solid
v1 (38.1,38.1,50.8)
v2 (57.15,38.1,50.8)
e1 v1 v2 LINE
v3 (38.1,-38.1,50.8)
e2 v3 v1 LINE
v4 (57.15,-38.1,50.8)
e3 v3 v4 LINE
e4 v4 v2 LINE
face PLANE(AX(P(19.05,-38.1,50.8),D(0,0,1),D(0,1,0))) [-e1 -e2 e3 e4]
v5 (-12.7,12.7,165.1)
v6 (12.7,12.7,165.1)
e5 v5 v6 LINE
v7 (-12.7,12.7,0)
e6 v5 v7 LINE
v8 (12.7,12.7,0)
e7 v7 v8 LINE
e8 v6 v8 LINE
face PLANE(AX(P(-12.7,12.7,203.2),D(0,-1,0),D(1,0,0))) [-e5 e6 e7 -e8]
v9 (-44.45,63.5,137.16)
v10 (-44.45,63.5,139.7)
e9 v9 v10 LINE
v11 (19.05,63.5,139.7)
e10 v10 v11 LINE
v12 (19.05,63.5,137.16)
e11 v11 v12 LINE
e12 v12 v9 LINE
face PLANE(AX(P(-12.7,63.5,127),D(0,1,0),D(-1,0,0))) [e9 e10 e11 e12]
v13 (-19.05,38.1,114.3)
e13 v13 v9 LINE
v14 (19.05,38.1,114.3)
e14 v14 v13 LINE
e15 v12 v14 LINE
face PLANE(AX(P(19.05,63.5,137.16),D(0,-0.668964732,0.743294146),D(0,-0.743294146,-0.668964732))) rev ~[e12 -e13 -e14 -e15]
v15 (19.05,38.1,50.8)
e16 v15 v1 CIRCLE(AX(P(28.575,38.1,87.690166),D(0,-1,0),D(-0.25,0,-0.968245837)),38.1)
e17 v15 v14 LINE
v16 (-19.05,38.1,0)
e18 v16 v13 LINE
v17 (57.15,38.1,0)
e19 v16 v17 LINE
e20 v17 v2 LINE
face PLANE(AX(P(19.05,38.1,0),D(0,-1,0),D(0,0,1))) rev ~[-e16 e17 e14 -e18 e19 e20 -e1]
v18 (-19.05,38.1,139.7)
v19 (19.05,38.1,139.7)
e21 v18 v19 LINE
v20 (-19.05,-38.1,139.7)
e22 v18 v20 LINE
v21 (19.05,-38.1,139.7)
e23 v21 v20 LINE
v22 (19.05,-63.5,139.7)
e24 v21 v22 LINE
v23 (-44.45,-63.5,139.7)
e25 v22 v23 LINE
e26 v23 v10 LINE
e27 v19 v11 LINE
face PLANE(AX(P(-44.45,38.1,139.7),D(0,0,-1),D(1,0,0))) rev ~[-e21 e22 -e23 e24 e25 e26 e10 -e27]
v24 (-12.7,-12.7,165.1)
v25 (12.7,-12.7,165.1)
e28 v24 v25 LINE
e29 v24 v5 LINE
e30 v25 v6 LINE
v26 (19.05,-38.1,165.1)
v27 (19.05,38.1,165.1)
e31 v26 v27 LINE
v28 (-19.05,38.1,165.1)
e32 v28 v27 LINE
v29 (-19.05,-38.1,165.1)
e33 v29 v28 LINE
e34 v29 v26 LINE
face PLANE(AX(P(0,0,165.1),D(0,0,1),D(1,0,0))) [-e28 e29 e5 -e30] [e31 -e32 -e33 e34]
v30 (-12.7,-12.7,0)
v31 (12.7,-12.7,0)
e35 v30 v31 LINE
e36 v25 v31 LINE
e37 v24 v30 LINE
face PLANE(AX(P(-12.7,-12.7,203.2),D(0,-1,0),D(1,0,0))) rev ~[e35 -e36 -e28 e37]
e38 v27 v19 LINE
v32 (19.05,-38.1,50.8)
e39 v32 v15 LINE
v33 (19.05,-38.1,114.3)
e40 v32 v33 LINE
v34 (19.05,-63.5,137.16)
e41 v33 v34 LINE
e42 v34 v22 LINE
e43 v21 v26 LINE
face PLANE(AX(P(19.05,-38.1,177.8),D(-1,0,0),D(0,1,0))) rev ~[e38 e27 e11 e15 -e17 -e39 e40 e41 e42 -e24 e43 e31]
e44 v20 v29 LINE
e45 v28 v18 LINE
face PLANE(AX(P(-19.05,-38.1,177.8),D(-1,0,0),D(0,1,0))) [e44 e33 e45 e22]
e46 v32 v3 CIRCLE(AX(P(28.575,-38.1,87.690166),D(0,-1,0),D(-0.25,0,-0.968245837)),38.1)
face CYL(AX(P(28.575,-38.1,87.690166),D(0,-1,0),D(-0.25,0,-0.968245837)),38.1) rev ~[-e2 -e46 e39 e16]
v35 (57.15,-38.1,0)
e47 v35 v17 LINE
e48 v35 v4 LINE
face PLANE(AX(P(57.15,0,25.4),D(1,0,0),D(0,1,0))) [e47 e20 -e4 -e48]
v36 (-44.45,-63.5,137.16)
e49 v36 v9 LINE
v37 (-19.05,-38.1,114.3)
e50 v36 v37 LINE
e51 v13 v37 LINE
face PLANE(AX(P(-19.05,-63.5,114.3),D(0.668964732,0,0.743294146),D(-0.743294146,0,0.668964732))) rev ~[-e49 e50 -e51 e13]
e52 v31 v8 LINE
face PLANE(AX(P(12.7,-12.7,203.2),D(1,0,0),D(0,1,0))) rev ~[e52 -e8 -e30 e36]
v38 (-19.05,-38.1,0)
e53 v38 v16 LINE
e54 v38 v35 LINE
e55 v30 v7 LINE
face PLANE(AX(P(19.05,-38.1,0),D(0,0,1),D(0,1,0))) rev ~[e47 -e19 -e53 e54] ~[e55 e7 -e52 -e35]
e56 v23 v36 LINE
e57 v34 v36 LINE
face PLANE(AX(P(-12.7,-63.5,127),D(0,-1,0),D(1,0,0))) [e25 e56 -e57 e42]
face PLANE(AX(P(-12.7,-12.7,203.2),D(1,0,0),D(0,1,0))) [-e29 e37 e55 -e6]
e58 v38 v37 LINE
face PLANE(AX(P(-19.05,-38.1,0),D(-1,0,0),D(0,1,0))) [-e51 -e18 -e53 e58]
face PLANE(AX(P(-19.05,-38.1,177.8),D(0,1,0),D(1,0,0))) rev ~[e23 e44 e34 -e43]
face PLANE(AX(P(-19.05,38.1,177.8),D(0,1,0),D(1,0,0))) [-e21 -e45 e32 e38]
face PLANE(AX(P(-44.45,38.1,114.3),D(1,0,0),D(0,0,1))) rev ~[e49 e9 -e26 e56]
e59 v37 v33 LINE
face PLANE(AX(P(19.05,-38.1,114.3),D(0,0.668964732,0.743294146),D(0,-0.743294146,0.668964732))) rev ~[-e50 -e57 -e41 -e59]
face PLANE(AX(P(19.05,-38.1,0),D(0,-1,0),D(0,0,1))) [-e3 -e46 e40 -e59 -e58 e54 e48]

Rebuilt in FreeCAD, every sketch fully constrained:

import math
import FreeCAD as App
import Part
import Sketcher
Q = App.Units.Quantity


def add_polygon(sketch, points):
    """Adds a closed chain of lines whose ends are joined by coincident constraints."""
    first, n = sketch.GeometryCount, len(points)
    for a, b in zip(points, points[1:] + points[:1]):
        sketch.addGeometry(Part.LineSegment(App.Vector(*a, 0), App.Vector(*b, 0)), False)
    for i in range(n):
        sketch.addConstraint(Sketcher.Constraint("Coincident", first + i, 2, first + (i + 1) % n, 1))

doc = App.newDocument("Part")
params = doc.addObject("Spreadsheet::Sheet", "Params")
for row, (alias, value) in enumerate([
    ("sketch1_height", "3 in"),
    ("sketch1_width", "1.5 in"),
    ("pad1_length", "7 in"),
    ("sketch2_width", "3 in"),
    ("sketch2_height", "1 in"),
    ("pad2_length", "1 in"),
    ("sketch3_height", "1 in"),
    ("sketch3_width", "2.5 in"),
    ("pad3_length", "1 in"),
    ("sketch4_height", "1 in"),
    ("sketch4_width", "2.5 in"),
    ("pad4_length", "1 in"),
    ("sketch5_width", "1 in"),
    ("sketch5_height", "0.9 in"),
    ("pocket1_length", "9 in"),
    ("sketch6_width", "1 in"),
    ("sketch6_height", "0.9 in"),
    ("pocket2_length", "9 in"),
    ("sketch7_height", "3 in"),
    ("sketch7_width", "1.5 in"),
    ("pad5_length", "1 in"),
    ("sketch8_width", "1 in"),
    ("pocket3_length", "9 in"),
    ("sketch9_width", "3 in"),
    ("sketch9_height", "2 in"),
    ("pad6_length", "1.5 in"),
    ("sketch10_radius", "1.5 in"),
    ("sketch10_width", "0.75 in"),
    ("pocket4_length", "9 in"),
    ("sketch11_width", "1 in"),
    ("sketch11_height", "3 in"),
    ("sketch11_width2", "1.5 in"),
    ("pocket5_length", "1.5 in"),
], start=1):
    params.set(f"A{row}", alias)
    params.set(f"B{row}", "=" + value)
    params.setAlias(f"B{row}", alias)

body = doc.addObject("PartDesign::Body", "Body")

sketch1 = body.newObject("Sketcher::SketchObject", "Sketch")
sketch1.AttachmentSupport = (doc.getObject("XY_Plane"), [""])
sketch1.MapMode = "FlatFace"
add_polygon(sketch1, [(-19.05, 38.1), (-19.05, -38.1), (19.05, -38.1), (19.05, 38.1)])
sketch1.addConstraint([
    Sketcher.Constraint("Vertical", 0),
    Sketcher.Constraint("Horizontal", 1),
    Sketcher.Constraint("Vertical", 2),
    Sketcher.Constraint("Horizontal", 3),
    Sketcher.Constraint("Symmetric", 0, 2, 2, 2, -1, 1),
    Sketcher.Constraint("DistanceY", 0, 2, 0, 1, Q("3 in")),
    Sketcher.Constraint("DistanceX", 1, 1, 1, 2, Q("1.5 in")),
])
sketch1.setExpression("Constraints[9]", "Params.sketch1_height")
sketch1.setExpression("Constraints[10]", "Params.sketch1_width")
pad1 = body.newObject("PartDesign::Pad", "Pad")
pad1.Profile = sketch1
pad1.setExpression("Length", "Params.pad1_length")

sketch2 = body.newObject("Sketcher::SketchObject", "Sketch001")
sketch2.AttachmentSupport = (doc.getObject("YZ_Plane"), [""])
sketch2.MapMode = "FlatFace"
sketch2.AttachmentOffset = App.Placement(App.Vector(0, 0, -0.75 * 25.4), App.Rotation())
add_polygon(sketch2, [(38.1, 139.7), (38.1, 114.3), (-38.1, 114.3), (-38.1, 139.7)])
sketch2.addConstraint([
    Sketcher.Constraint("Vertical", 0),
    Sketcher.Constraint("Horizontal", 1),
    Sketcher.Constraint("Vertical", 2),
    Sketcher.Constraint("Horizontal", 3),
    Sketcher.Constraint("DistanceX", 1, 2, 1, 1, Q("3 in")),
    Sketcher.Constraint("DistanceY", 0, 2, 0, 1, Q("1 in")),
    Sketcher.Constraint("DistanceX", -1, 1, 0, 2, Q("1.5 in")),
    Sketcher.Constraint("DistanceY", -1, 1, 0, 2, Q("4.5 in")),
])
sketch2.setExpression("Constraints[8]", "Params.sketch2_width")
sketch2.setExpression("Constraints[9]", "Params.sketch2_height")
pad2 = body.newObject("PartDesign::Pad", "Pad001")
pad2.Profile = sketch2
pad2.setExpression("Length", "Params.pad2_length")
pad2.Reversed = True

sketch3 = body.newObject("Sketcher::SketchObject", "Sketch002")
sketch3.AttachmentSupport = (doc.getObject("XZ_Plane"), [""])
sketch3.MapMode = "FlatFace"
sketch3.AttachmentOffset = App.Placement(App.Vector(0, 0, 1.5 * 25.4), App.Rotation())
add_polygon(sketch3, [(-44.45, 139.7), (-44.45, 114.3), (19.05, 114.3), (19.05, 139.7)])
sketch3.addConstraint([
    Sketcher.Constraint("Vertical", 0),
    Sketcher.Constraint("Horizontal", 1),
    Sketcher.Constraint("Vertical", 2),
    Sketcher.Constraint("Horizontal", 3),
    Sketcher.Constraint("DistanceY", 0, 2, 0, 1, Q("1 in")),
    Sketcher.Constraint("DistanceX", 1, 1, 1, 2, Q("2.5 in")),
    Sketcher.Constraint("DistanceY", -1, 1, 0, 2, Q("4.5 in")),
    Sketcher.Constraint("DistanceX", 0, 2, -1, 1, Q("1.75 in")),
])
sketch3.setExpression("Constraints[8]", "Params.sketch3_height")
sketch3.setExpression("Constraints[9]", "Params.sketch3_width")
pad3 = body.newObject("PartDesign::Pad", "Pad002")
pad3.Profile = sketch3
pad3.setExpression("Length", "Params.pad3_length")

sketch4 = body.newObject("Sketcher::SketchObject", "Sketch003")
sketch4.AttachmentSupport = (doc.getObject("XZ_Plane"), [""])
sketch4.MapMode = "FlatFace"
sketch4.AttachmentOffset = App.Placement(App.Vector(0, 0, -1.5 * 25.4), App.Rotation())
add_polygon(sketch4, [(-44.45, 114.3), (-44.45, 139.7), (19.05, 139.7), (19.05, 114.3)])
sketch4.addConstraint([
    Sketcher.Constraint("Vertical", 0),
    Sketcher.Constraint("Horizontal", 1),
    Sketcher.Constraint("Vertical", 2),
    Sketcher.Constraint("Horizontal", 3),
    Sketcher.Constraint("DistanceY", 0, 1, 0, 2, Q("1 in")),
    Sketcher.Constraint("DistanceX", 1, 1, 1, 2, Q("2.5 in")),
    Sketcher.Constraint("DistanceY", -1, 1, 0, 2, Q("5.5 in")),
    Sketcher.Constraint("DistanceX", 0, 2, -1, 1, Q("1.75 in")),
])
sketch4.setExpression("Constraints[8]", "Params.sketch4_height")
sketch4.setExpression("Constraints[9]", "Params.sketch4_width")
pad4 = body.newObject("PartDesign::Pad", "Pad003")
pad4.Profile = sketch4
pad4.setExpression("Length", "Params.pad4_length")
pad4.Reversed = True

sketch5 = body.newObject("Sketcher::SketchObject", "Sketch004")
sketch5.AttachmentSupport = (doc.getObject("YZ_Plane"), [""])
sketch5.MapMode = "FlatFace"
sketch5.AttachmentOffset = App.Placement(App.Vector(0, 0, 0.75 * 25.4), App.Rotation())
add_polygon(sketch5, [(-38.1, 114.3), (-63.5, 137.16), (-63.5, 114.3)])
add_polygon(sketch5, [(63.5, 137.16), (38.1, 114.3), (63.5, 114.3)])
sketch5.addConstraint([
    Sketcher.Constraint("Vertical", 1),
    Sketcher.Constraint("Horizontal", 2),
    Sketcher.Constraint("Horizontal", 4),
    Sketcher.Constraint("Vertical", 5),
    Sketcher.Constraint("Symmetric", 2, 2, 3, 2, -2),
    Sketcher.Constraint("Symmetric", 0, 2, 5, 2, -2),
    Sketcher.Constraint("DistanceX", 2, 1, 2, 2, Q("1 in")),
    Sketcher.Constraint("DistanceY", 1, 2, 1, 1, Q("0.9 in")),
    Sketcher.Constraint("DistanceX", 2, 2, 3, 2, Q("3 in")),
    Sketcher.Constraint("DistanceY", -1, 1, 0, 2, Q("5.4 in")),
])
sketch5.setExpression("Constraints[12]", "Params.sketch5_width")
sketch5.setExpression("Constraints[13]", "Params.sketch5_height")
pocket1 = body.newObject("PartDesign::Pocket", "Pocket")
pocket1.Profile = sketch5
pocket1.setExpression("Length", "Params.pocket1_length")

sketch6 = body.newObject("Sketcher::SketchObject", "Sketch005")
sketch6.AttachmentSupport = (doc.getObject("XZ_Plane"), [""])
sketch6.MapMode = "FlatFace"
sketch6.AttachmentOffset = App.Placement(App.Vector(0, 0, 2.5 * 25.4), App.Rotation())
add_polygon(sketch6, [(-19.05, 114.3), (-44.45, 137.16), (-44.45, 114.3)])
sketch6.addConstraint([
    Sketcher.Constraint("Vertical", 1),
    Sketcher.Constraint("Horizontal", 2),
    Sketcher.Constraint("DistanceX", 2, 1, 2, 2, Q("1 in")),
    Sketcher.Constraint("DistanceY", 1, 2, 1, 1, Q("0.9 in")),
    Sketcher.Constraint("DistanceY", -1, 1, 0, 2, Q("5.4 in")),
    Sketcher.Constraint("DistanceX", 0, 2, -1, 1, Q("1.75 in")),
])
sketch6.setExpression("Constraints[5]", "Params.sketch6_width")
sketch6.setExpression("Constraints[6]", "Params.sketch6_height")
pocket2 = body.newObject("PartDesign::Pocket", "Pocket001")
pocket2.Profile = sketch6
pocket2.setExpression("Length", "Params.pocket2_length")

sketch7 = body.newObject("Sketcher::SketchObject", "Sketch006")
sketch7.AttachmentSupport = (doc.getObject("XY_Plane"), [""])
sketch7.MapMode = "FlatFace"
sketch7.AttachmentOffset = App.Placement(App.Vector(0, 0, 7 * 25.4), App.Rotation())
add_polygon(sketch7, [(-19.05, 38.1), (-19.05, -38.1), (19.05, -38.1), (19.05, 38.1)])
sketch7.addConstraint([
    Sketcher.Constraint("Vertical", 0),
    Sketcher.Constraint("Horizontal", 1),
    Sketcher.Constraint("Vertical", 2),
    Sketcher.Constraint("Horizontal", 3),
    Sketcher.Constraint("Symmetric", 0, 2, 2, 2, -1, 1),
    Sketcher.Constraint("DistanceY", 0, 2, 0, 1, Q("3 in")),
    Sketcher.Constraint("DistanceX", 1, 1, 1, 2, Q("1.5 in")),
])
sketch7.setExpression("Constraints[9]", "Params.sketch7_height")
sketch7.setExpression("Constraints[10]", "Params.sketch7_width")
pad5 = body.newObject("PartDesign::Pad", "Pad004")
pad5.Profile = sketch7
pad5.setExpression("Length", "Params.pad5_length")

sketch8 = body.newObject("Sketcher::SketchObject", "Sketch007")
sketch8.AttachmentSupport = (doc.getObject("XY_Plane"), [""])
sketch8.MapMode = "FlatFace"
sketch8.AttachmentOffset = App.Placement(App.Vector(0, 0, 8 * 25.4), App.Rotation())
add_polygon(sketch8, [(-12.7, 12.7), (-12.7, -12.7), (12.7, -12.7), (12.7, 12.7)])
sketch8.addConstraint([
    Sketcher.Constraint("Vertical", 0),
    Sketcher.Constraint("Horizontal", 1),
    Sketcher.Constraint("Vertical", 2),
    Sketcher.Constraint("Horizontal", 3),
    Sketcher.Constraint("Symmetric", 0, 2, 2, 2, -1, 1),
    Sketcher.Constraint("Equal", 3, 0),
    Sketcher.Constraint("DistanceX", 1, 1, 1, 2, Q("1 in")),
])
sketch8.setExpression("Constraints[10]", "Params.sketch8_width")
pocket3 = body.newObject("PartDesign::Pocket", "Pocket002")
pocket3.Profile = sketch8
pocket3.setExpression("Length", "Params.pocket3_length")

sketch9 = body.newObject("Sketcher::SketchObject", "Sketch008")
sketch9.AttachmentSupport = (doc.getObject("YZ_Plane"), [""])
sketch9.MapMode = "FlatFace"
sketch9.AttachmentOffset = App.Placement(App.Vector(0, 0, 0.75 * 25.4), App.Rotation())
add_polygon(sketch9, [(-38.1, 50.8), (-38.1, 0), (38.1, 0), (38.1, 50.8)])
sketch9.addConstraint([
    Sketcher.Constraint("Vertical", 0),
    Sketcher.Constraint("Horizontal", 1),
    Sketcher.Constraint("Vertical", 2),
    Sketcher.Constraint("Horizontal", 3),
    Sketcher.Constraint("Symmetric", 0, 2, 1, 2, -1, 1),
    Sketcher.Constraint("DistanceX", 1, 1, 1, 2, Q("3 in")),
    Sketcher.Constraint("DistanceY", 0, 2, 0, 1, Q("2 in")),
])
sketch9.setExpression("Constraints[9]", "Params.sketch9_width")
sketch9.setExpression("Constraints[10]", "Params.sketch9_height")
pad6 = body.newObject("PartDesign::Pad", "Pad005")
pad6.Profile = sketch9
pad6.setExpression("Length", "Params.pad6_length")

sketch10 = body.newObject("Sketcher::SketchObject", "Sketch009")
sketch10.AttachmentSupport = (doc.getObject("XZ_Plane"), [""])
sketch10.MapMode = "FlatFace"
sketch10.AttachmentOffset = App.Placement(App.Vector(0, 0, 1.5 * 25.4), App.Rotation())
sketch10.addGeometry([
    Part.LineSegment(App.Vector(38.1, 50.8, 0), App.Vector(19.05, 50.8, 0)),
    Part.ArcOfCircle(Part.Circle(App.Vector(28.575, 87.690166, 0), App.Vector(0, 0, 1), 38.1), math.radians(-104.477512), math.radians(-75.522488)),
], False)
sketch10.addConstraint([
    Sketcher.Constraint("Coincident", 0, 1, 1, 2),
    Sketcher.Constraint("Coincident", 1, 1, 0, 2),
    Sketcher.Constraint("Horizontal", 0),
    Sketcher.Constraint("Radius", 1, Q("1.5 in")),
    Sketcher.Constraint("DistanceY", -1, 1, 0, 1, Q("2 in")),
    Sketcher.Constraint("DistanceX", 0, 2, 0, 1, Q("0.75 in")),
    Sketcher.Constraint("DistanceX", -1, 1, 0, 1, Q("1.5 in")),
])
sketch10.setExpression("Constraints[3]", "Params.sketch10_radius")
sketch10.setExpression("Constraints[5]", "Params.sketch10_width")
pocket4 = body.newObject("PartDesign::Pocket", "Pocket003")
pocket4.Profile = sketch10
pocket4.setExpression("Length", "Params.pocket4_length")

sketch11 = body.newObject("Sketcher::SketchObject", "Sketch010")
sketch11.AttachmentSupport = (doc.getObject("XY_Plane"), [""])
sketch11.MapMode = "FlatFace"
sketch11.AttachmentOffset = App.Placement(App.Vector(0, 0, 8 * 25.4), App.Rotation())
add_polygon(sketch11, [(-19.05, 38.1), (-19.05, -38.1), (19.05, -38.1), (19.05, 38.1)])
add_polygon(sketch11, [(12.7, -12.7), (-12.7, -12.7), (-12.7, 12.7), (12.7, 12.7)])
sketch11.addConstraint([
    Sketcher.Constraint("Vertical", 0),
    Sketcher.Constraint("Horizontal", 1),
    Sketcher.Constraint("Vertical", 2),
    Sketcher.Constraint("Horizontal", 3),
    Sketcher.Constraint("Horizontal", 4),
    Sketcher.Constraint("Vertical", 5),
    Sketcher.Constraint("Horizontal", 6),
    Sketcher.Constraint("Vertical", 7),
    Sketcher.Constraint("Symmetric", 0, 2, 2, 2, -1, 1),
    Sketcher.Constraint("Symmetric", 4, 2, 6, 2, -1, 1),
    Sketcher.Constraint("Equal", 6, 5),
    Sketcher.Constraint("DistanceX", 4, 2, 4, 1, Q("1 in")),
    Sketcher.Constraint("DistanceY", 0, 2, 0, 1, Q("3 in")),
    Sketcher.Constraint("DistanceX", 1, 1, 1, 2, Q("1.5 in")),
])
sketch11.setExpression("Constraints[19]", "Params.sketch11_width")
sketch11.setExpression("Constraints[20]", "Params.sketch11_height")
sketch11.setExpression("Constraints[21]", "Params.sketch11_width2")
pocket5 = body.newObject("PartDesign::Pocket", "Pocket004")
pocket5.Profile = sketch11
pocket5.setExpression("Length", "Params.pocket5_length")

doc.recompute()
